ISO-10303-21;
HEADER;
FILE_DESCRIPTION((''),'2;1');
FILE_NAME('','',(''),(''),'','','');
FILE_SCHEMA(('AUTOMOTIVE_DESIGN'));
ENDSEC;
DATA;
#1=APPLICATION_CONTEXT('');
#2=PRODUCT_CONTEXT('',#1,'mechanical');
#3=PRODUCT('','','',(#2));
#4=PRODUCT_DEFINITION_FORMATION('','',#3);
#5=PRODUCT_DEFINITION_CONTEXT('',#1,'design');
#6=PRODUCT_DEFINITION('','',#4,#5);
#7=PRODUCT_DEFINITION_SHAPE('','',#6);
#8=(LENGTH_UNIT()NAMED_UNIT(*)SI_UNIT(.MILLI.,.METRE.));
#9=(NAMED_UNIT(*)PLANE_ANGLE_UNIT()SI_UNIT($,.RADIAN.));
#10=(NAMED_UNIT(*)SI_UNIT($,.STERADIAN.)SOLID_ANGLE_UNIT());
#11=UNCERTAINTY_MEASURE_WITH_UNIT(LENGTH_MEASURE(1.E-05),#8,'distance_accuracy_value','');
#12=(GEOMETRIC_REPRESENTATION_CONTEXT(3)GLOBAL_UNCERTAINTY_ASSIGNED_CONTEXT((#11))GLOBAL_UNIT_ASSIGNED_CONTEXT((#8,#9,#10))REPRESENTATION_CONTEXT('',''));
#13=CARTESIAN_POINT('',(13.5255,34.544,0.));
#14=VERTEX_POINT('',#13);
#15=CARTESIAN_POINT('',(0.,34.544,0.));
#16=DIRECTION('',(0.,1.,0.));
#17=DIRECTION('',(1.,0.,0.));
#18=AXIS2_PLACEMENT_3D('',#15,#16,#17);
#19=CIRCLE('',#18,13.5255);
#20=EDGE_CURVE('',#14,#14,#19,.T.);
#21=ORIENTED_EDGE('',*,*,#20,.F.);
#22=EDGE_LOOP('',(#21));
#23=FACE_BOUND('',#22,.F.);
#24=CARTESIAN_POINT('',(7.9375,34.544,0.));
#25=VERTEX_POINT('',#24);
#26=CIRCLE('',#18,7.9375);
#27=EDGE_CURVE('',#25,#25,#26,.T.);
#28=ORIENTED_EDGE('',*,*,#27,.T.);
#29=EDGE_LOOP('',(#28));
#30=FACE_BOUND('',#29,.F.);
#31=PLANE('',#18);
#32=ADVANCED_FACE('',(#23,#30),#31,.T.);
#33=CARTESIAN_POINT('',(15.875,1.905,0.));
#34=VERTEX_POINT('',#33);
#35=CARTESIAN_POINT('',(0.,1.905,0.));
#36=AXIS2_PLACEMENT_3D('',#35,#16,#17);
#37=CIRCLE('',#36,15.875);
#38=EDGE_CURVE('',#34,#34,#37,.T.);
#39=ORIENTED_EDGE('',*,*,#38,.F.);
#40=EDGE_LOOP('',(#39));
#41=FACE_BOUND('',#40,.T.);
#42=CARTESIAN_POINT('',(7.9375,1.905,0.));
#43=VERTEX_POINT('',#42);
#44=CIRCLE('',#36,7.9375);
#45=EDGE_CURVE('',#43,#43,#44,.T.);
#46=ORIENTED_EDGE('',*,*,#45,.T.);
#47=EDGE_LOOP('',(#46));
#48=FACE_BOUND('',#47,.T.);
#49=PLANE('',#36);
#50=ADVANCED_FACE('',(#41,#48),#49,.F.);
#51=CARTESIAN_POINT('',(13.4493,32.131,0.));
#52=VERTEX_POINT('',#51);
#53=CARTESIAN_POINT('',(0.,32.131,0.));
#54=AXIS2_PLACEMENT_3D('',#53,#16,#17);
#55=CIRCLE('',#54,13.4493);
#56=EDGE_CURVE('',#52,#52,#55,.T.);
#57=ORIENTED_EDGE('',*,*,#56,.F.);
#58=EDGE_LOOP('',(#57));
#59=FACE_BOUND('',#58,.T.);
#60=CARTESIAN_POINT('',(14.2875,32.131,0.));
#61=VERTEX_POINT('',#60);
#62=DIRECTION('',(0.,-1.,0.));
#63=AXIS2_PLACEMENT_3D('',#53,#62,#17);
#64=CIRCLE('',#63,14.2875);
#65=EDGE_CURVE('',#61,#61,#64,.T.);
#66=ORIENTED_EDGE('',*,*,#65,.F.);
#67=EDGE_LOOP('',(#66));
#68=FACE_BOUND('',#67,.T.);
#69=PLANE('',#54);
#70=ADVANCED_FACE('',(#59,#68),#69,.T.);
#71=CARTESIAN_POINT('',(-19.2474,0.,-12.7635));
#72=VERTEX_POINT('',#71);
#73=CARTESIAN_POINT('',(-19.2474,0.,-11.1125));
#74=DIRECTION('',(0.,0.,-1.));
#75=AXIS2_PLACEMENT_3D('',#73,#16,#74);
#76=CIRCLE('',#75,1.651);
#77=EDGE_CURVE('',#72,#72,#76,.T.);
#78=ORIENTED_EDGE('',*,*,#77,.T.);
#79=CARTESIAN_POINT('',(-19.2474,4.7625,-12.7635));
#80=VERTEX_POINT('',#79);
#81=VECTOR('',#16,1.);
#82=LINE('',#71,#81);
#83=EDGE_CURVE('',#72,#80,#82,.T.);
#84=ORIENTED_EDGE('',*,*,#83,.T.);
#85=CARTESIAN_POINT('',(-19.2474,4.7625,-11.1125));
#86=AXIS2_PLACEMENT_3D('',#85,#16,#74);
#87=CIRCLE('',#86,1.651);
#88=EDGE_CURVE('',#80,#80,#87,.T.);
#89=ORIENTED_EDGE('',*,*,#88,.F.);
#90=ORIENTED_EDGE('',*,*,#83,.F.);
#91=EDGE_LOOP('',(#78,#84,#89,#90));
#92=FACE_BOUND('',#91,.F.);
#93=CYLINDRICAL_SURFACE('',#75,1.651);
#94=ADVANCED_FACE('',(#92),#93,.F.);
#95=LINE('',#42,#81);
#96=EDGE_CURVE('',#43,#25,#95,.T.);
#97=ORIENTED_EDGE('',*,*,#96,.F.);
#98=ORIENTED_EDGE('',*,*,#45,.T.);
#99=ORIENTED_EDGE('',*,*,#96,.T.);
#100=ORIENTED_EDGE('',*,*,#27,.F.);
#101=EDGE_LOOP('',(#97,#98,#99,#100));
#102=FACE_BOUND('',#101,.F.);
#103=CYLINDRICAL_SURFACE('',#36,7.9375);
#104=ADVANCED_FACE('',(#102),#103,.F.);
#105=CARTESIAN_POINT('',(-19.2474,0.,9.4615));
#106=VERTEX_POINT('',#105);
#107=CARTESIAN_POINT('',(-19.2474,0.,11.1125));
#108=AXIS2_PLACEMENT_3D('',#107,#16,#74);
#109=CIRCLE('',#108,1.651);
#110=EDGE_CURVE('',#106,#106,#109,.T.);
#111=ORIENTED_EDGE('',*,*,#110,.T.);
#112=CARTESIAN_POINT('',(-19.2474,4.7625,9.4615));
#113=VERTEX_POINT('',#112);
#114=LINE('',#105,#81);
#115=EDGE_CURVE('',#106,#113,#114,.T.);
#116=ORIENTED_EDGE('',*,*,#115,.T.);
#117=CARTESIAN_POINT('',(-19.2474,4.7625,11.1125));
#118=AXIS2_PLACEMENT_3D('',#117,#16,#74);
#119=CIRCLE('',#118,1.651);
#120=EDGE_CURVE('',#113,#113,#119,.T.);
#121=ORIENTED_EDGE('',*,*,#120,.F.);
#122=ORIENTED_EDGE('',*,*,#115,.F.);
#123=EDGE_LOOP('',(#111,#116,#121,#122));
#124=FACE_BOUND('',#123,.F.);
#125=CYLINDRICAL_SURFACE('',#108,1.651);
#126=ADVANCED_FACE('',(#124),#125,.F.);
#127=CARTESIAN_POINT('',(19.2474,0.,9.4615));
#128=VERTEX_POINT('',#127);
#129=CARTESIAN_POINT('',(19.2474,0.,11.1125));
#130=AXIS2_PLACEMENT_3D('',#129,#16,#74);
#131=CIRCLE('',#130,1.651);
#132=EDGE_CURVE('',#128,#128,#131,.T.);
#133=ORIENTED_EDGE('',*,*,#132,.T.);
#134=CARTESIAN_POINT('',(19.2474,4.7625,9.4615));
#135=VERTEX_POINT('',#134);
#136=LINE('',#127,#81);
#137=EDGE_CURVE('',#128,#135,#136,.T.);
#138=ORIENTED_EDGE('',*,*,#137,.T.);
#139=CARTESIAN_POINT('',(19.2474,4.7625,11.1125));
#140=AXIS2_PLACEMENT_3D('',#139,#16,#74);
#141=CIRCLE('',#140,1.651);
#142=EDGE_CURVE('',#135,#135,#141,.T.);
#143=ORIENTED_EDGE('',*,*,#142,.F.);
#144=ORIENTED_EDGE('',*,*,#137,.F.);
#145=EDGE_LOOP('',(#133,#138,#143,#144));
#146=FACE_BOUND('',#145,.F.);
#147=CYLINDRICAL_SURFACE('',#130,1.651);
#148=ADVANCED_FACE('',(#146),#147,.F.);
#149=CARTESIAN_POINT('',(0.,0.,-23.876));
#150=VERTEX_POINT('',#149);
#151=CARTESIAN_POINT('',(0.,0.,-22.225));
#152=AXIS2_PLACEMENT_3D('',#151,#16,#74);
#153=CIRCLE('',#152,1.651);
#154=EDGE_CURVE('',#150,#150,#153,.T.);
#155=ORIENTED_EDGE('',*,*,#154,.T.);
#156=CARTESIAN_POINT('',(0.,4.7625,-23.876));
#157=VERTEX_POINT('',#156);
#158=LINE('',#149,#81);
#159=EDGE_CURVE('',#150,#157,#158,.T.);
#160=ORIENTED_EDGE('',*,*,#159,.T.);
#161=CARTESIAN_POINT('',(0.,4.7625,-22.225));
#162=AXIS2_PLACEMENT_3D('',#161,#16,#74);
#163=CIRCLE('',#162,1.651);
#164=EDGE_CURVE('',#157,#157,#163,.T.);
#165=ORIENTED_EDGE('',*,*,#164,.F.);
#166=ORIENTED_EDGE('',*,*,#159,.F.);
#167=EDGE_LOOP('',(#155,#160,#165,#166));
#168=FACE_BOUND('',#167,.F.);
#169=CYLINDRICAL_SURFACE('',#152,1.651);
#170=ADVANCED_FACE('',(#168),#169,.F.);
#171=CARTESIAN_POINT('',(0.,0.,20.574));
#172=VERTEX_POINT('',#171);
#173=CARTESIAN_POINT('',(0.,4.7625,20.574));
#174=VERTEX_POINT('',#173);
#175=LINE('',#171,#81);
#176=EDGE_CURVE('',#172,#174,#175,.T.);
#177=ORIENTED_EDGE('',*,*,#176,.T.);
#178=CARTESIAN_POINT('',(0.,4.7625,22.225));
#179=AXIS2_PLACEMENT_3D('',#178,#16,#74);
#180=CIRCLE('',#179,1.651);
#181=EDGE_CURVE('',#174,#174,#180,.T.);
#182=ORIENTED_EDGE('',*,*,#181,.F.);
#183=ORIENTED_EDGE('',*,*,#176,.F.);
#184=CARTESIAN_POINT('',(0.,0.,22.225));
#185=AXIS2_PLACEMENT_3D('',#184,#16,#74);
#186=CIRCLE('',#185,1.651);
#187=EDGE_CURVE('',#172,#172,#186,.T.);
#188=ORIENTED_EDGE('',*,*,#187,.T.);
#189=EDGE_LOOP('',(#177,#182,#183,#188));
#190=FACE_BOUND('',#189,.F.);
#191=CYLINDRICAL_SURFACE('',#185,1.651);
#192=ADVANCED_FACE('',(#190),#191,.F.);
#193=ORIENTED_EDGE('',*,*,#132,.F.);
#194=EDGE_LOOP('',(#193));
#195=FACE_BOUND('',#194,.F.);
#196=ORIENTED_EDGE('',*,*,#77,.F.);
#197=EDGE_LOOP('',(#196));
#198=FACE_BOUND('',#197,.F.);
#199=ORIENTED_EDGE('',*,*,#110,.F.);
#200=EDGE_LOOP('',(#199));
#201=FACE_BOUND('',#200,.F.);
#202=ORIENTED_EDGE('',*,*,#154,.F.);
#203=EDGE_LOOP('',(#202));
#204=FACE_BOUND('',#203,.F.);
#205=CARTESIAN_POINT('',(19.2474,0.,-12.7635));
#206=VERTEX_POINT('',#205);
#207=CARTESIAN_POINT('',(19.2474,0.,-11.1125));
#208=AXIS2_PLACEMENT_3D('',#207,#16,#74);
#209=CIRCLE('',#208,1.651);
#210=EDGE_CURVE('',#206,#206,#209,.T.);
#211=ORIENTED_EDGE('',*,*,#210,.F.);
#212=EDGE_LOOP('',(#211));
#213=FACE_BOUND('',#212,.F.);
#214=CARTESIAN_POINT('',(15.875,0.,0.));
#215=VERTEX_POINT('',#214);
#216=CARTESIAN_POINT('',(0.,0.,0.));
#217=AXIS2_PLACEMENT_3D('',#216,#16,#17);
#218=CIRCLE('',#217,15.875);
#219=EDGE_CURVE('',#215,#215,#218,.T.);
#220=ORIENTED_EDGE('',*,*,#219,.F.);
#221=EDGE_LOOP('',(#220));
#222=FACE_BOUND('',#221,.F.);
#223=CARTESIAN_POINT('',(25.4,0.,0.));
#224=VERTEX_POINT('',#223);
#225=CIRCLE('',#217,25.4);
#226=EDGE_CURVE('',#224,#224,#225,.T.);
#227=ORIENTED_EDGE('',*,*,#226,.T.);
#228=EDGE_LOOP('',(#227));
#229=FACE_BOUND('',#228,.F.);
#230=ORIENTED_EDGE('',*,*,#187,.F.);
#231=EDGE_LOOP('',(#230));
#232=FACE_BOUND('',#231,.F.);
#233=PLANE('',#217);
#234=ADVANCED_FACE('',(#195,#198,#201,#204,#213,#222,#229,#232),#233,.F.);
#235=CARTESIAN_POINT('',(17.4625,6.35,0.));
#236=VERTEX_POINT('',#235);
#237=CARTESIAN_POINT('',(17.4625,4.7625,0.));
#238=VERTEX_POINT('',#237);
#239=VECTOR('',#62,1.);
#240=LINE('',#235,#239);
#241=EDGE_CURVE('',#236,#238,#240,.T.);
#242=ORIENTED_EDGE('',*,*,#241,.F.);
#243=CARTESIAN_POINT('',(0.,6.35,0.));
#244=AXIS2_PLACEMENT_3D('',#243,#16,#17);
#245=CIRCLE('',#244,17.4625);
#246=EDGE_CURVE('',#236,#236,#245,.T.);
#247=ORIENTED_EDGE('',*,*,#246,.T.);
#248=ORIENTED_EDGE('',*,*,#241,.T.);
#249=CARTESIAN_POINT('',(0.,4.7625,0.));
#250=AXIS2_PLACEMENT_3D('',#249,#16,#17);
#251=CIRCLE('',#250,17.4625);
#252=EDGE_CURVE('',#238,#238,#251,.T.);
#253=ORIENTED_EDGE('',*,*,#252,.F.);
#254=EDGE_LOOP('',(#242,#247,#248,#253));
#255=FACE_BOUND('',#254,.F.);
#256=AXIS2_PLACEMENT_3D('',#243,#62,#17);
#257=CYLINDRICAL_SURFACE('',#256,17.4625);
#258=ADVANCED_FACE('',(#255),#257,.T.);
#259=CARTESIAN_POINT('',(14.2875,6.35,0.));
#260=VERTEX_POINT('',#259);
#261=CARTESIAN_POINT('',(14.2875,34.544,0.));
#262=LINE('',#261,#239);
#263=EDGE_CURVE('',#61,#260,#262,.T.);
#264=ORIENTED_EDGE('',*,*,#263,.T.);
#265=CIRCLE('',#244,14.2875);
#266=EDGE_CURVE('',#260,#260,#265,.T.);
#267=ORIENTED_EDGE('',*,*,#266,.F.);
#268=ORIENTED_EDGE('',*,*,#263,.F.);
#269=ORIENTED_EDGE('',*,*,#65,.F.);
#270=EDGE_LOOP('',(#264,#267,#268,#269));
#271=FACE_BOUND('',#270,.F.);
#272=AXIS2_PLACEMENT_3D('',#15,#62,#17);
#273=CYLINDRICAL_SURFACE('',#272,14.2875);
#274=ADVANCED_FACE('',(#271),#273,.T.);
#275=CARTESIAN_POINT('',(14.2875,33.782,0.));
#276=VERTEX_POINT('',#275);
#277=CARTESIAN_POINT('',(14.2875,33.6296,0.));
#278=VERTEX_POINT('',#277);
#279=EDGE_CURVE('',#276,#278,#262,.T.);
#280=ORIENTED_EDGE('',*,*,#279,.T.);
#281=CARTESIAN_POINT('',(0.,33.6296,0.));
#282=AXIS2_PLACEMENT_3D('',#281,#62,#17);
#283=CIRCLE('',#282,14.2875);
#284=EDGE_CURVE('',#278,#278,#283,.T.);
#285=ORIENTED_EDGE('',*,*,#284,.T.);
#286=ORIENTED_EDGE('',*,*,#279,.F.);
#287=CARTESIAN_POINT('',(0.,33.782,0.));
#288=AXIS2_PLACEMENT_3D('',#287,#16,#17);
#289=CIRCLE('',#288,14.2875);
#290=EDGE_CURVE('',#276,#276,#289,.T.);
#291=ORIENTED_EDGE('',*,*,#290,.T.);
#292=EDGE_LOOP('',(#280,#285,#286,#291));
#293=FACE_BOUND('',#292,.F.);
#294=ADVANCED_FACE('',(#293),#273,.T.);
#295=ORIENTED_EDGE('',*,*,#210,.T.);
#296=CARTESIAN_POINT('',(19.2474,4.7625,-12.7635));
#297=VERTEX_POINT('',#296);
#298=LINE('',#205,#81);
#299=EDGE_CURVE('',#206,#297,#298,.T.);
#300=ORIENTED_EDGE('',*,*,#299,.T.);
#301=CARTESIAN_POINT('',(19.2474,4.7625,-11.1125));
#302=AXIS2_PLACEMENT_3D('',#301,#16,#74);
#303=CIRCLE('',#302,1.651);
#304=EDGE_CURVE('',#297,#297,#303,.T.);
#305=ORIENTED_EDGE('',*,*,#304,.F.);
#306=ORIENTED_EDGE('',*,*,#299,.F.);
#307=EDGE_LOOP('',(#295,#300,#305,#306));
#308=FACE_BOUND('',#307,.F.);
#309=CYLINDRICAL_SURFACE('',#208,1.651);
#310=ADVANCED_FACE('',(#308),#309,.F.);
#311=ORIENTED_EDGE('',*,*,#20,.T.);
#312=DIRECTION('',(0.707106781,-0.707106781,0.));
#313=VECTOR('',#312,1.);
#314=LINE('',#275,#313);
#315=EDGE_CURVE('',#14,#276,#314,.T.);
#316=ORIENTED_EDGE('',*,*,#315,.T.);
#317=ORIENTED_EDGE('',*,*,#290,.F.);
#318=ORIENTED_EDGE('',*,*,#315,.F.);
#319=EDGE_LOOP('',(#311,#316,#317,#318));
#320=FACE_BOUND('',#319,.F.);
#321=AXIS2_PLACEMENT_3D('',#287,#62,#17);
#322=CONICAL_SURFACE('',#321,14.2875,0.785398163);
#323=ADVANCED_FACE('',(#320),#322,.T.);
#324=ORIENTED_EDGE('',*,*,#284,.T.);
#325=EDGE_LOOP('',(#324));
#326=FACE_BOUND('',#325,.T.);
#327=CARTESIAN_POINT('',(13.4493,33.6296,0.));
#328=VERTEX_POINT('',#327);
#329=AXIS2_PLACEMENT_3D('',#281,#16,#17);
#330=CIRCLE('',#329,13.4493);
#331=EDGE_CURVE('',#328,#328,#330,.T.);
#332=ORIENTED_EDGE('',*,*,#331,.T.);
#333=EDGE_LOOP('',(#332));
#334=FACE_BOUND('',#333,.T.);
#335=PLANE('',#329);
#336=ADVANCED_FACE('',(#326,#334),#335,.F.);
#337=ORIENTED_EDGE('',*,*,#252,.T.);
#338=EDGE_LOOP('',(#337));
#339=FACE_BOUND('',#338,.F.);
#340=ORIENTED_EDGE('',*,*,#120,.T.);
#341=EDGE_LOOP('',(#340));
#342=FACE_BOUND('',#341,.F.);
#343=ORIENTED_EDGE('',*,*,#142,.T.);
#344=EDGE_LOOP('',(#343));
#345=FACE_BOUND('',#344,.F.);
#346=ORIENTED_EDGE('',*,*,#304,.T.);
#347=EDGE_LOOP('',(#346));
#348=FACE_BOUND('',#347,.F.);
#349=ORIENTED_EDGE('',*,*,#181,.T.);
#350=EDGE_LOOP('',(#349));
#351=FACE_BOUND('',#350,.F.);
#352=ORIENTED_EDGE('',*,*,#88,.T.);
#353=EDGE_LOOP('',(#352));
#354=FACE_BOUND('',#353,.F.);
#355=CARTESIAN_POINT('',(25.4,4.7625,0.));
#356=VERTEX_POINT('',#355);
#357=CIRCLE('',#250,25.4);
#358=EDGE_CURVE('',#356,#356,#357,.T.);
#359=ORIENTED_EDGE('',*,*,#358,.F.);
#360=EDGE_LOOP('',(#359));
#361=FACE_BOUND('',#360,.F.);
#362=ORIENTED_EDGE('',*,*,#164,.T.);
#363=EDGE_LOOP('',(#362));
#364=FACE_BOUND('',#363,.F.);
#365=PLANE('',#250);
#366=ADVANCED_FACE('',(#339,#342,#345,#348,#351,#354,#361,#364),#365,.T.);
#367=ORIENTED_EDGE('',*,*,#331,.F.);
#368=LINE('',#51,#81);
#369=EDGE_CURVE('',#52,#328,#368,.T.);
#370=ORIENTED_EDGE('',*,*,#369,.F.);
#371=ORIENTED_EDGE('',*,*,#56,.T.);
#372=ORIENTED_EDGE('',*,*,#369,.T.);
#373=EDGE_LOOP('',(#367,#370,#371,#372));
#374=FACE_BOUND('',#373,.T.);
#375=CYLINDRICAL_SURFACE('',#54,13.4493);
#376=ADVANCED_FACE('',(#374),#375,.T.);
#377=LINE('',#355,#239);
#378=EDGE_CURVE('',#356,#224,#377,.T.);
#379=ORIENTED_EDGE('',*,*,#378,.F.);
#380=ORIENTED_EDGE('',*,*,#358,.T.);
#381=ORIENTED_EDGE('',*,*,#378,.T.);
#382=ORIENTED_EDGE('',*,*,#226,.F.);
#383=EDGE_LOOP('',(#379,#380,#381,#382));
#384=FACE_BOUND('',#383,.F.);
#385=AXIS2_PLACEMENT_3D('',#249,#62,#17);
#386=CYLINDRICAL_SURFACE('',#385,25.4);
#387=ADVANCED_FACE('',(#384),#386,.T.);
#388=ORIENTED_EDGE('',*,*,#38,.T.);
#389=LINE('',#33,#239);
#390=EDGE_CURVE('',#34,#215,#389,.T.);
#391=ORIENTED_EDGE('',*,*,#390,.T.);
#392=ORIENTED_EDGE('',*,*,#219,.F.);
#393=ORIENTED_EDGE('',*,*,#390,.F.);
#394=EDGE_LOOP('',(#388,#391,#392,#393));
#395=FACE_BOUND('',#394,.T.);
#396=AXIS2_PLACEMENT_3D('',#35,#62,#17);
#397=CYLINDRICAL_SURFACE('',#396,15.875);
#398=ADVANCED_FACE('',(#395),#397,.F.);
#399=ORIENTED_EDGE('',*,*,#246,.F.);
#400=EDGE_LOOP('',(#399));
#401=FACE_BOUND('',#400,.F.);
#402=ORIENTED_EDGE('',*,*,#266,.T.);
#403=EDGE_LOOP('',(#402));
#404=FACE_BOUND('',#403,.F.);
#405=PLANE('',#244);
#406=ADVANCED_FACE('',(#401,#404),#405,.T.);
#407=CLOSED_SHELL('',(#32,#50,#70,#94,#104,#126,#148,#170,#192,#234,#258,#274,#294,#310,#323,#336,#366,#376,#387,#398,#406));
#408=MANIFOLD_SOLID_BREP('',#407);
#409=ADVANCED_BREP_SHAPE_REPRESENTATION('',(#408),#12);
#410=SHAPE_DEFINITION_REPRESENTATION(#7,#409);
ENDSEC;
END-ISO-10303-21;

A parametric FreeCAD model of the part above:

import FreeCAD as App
import Part
import Sketcher

V = App.Vector
Q = App.Units.Quantity


def edges_at(feature, points):
    """Names of the edges that pass closest to the given points."""
    edges = feature.Shape.Edges
    near = lambda p: min(range(len(edges)), key=lambda i: edges[i].distToShape(Part.Vertex(*p))[0])
    return sorted({f"Edge{near(p) + 1}" for p in points})


def add_polygon(sketch, points):
    """Adds a closed chain of lines whose ends are joined by coincident constraints."""
    first, n = sketch.GeometryCount, len(points)
    for a, b in zip(points, points[1:] + points[:1]):
        sketch.addGeometry(Part.LineSegment(App.Vector(*a, 0), App.Vector(*b, 0)), False)
    for i in range(n):
        sketch.addConstraint(Sketcher.Constraint("Coincident", first + i, 2, first + (i + 1) % n, 1))

doc = App.newDocument("Part")
params = doc.addObject("Spreadsheet::Sheet", "Params")
for row, (alias, value) in enumerate([
    ("sketch1_height", "0.075 in"),
    ("sketch1_height2", "0.1875 in"),
    ("sketch1_height3", "0.0625 in"),
    ("revolution_angle", "360 deg"),
    ("sketch2_height", "0.059 in"),
    ("groove_angle", "360 deg"),
    ("chamfer_size", "0.03 in"),
    ("sketch3_diameter", "0.13 in"),
    ("hole_diameter", "0.13 in"),
], start=1):
    params.set(f"A{row}", alias)
    params.set(f"B{row}", "=" + value)
    params.setAlias(f"B{row}", alias)

body = doc.addObject("PartDesign::Body", "Body")

sketch1 = body.newObject("Sketcher::SketchObject", "Sketch")
sketch1.AttachmentSupport = (doc.getObject("XY_Plane"), [""])
sketch1.MapMode = "FlatFace"
add_polygon(sketch1, [(7.9375, 34.544), (7.9375, 1.905), (15.875, 1.905), (15.875, 0), (25.4, 0), (25.4, 4.7625), (17.4625, 4.7625), (17.4625, 6.35), (14.2875, 6.35), (14.2875, 34.544)])
sketch1.addConstraint([
    Sketcher.Constraint("Vertical", 0),
    Sketcher.Constraint("Horizontal", 1),
    Sketcher.Constraint("Vertical", 2),
    Sketcher.Constraint("Horizontal", 3),
    Sketcher.Constraint("Vertical", 4),
    Sketcher.Constraint("Horizontal", 5),
    Sketcher.Constraint("Vertical", 6),
    Sketcher.Constraint("Horizontal", 7),
    Sketcher.Constraint("Vertical", 8),
    Sketcher.Constraint("Horizontal", 9),
    Sketcher.Constraint("PointOnObject", 2, 2, -1),
    Sketcher.Constraint("Equal", 1, 5),
    Sketcher.Constraint("DistanceY", 2, 2, 2, 1, Q("0.075 in")),
    Sketcher.Constraint("DistanceY", 4, 1, 4, 2, Q("0.1875 in")),
    Sketcher.Constraint("DistanceY", 6, 1, 6, 2, Q("0.0625 in")),
    Sketcher.Constraint("DistanceY", -1, 1, 8, 2, Q("1.36 in")),
    Sketcher.Constraint("DistanceX", -1, 1, 1, 2, Q("0.625 in")),
    Sketcher.Constraint("DistanceX", -1, 1, 3, 2, Q("1 in")),
    Sketcher.Constraint("DistanceX", 1, 2, 5, 2, Q("0.0625 in")),
    Sketcher.Constraint("DistanceX", 7, 2, 1, 2, Q("0.0625 in")),
])
sketch1.setExpression("Constraints[22]", "Params.sketch1_height")
sketch1.setExpression("Constraints[23]", "Params.sketch1_height2")
sketch1.setExpression("Constraints[24]", "Params.sketch1_height3")
revolution = body.newObject("PartDesign::Revolution", "Revolution")
revolution.Profile = sketch1
revolution.ReferenceAxis = (sketch1, ["V_Axis"])
revolution.setExpression("Angle", "Params.revolution_angle")

sketch2 = body.newObject("Sketcher::SketchObject", "Sketch001")
sketch2.AttachmentSupport = (doc.getObject("XY_Plane"), [""])
sketch2.MapMode = "FlatFace"
add_polygon(sketch2, [(17.9779, 33.6296), (13.4493, 33.6296), (13.4493, 32.131), (17.9779, 32.131)])
sketch2.addConstraint([
    Sketcher.Constraint("Horizontal", 0),
    Sketcher.Constraint("Vertical", 1),
    Sketcher.Constraint("Horizontal", 2),
    Sketcher.Constraint("Vertical", 3),
    Sketcher.Constraint("DistanceY", 1, 2, 1, 1, Q("0.059 in")),
    Sketcher.Constraint("DistanceX", 0, 2, 0, 1, Q("0.1783 in")),
    Sketcher.Constraint("DistanceY", -1, 1, 0, 2, Q("1.324 in")),
    Sketcher.Constraint("DistanceX", -1, 1, 0, 2, Q("0.5295 in")),
])
sketch2.setExpression("Constraints[8]", "Params.sketch2_height")
groove = body.newObject("PartDesign::Groove", "Groove")
groove.Profile = sketch2
groove.ReferenceAxis = (sketch2, ["V_Axis"])
groove.setExpression("Angle", "Params.groove_angle")
doc.recompute()

chamfer = body.newObject("PartDesign::Chamfer", "Chamfer")
chamfer.Base = (groove, edges_at(groove, [(-14.287, 34.544, 0)]))
chamfer.setExpression("Size", "Params.chamfer_size")

sketch3 = body.newObject("Sketcher::SketchObject", "Sketch002")
sketch3.AttachmentSupport = (doc.getObject("XZ_Plane"), [""])
sketch3.MapMode = "FlatFace"
sketch3.addGeometry([
    Part.Circle(V(0, -22.225, 0), V(0, 0, 1), 1.651),
    Part.Circle(V(19.2474, -11.1125, 0), V(0, 0, 1), 1.651),
    Part.Circle(V(19.2474, 11.1125, 0), V(0, 0, 1), 1.651),
    Part.Circle(V(0, 22.225, 0), V(0, 0, 1), 1.651),
    Part.Circle(V(-19.2474, 11.1125, 0), V(0, 0, 1), 1.651),
    Part.Circle(V(-19.2474, -11.1125, 0), V(0, 0, 1), 1.651),
], False)
sketch3.addConstraint([
    Sketcher.Constraint("Equal", 0, 1),
    Sketcher.Constraint("Equal", 1, 2),
    Sketcher.Constraint("Equal", 2, 3),
    Sketcher.Constraint("Equal", 3, 4),
    Sketcher.Constraint("Equal", 4, 5),
    Sketcher.Constraint("Symmetric", 0, 3, 3, 3, -1, 1),
    Sketcher.Constraint("Symmetric", 1, 3, 4, 3, -1, 1),
    Sketcher.Constraint("Symmetric", 2, 3, 5, 3, -1, 1),
    Sketcher.Constraint("Symmetric", 2, 3, 4, 3, -2),
    Sketcher.Constraint("PointOnObject", 0, 3, -2),
    Sketcher.Constraint("Diameter", 0, Q("0.13 in")),
    Sketcher.Constraint("DistanceY", 0, 3, 3, 3, Q("1.75 in")),
    Sketcher.Constraint("DistanceY", 1, 3, -1, 1, Q("0.4375 in")),
    Sketcher.Constraint("DistanceX", -1, 1, 1, 3, Q("19.2474 mm")),
])
sketch3.setExpression("Constraints[10]", "Params.sketch3_diameter")
doc.recompute()
hole = body.newObject("PartDesign::Hole", "Hole")
hole.Profile = sketch3
hole.ThreadType = "None"
hole.setExpression("Diameter", "Params.hole_diameter")
hole.DepthType = "ThroughAll"

doc.recompute()
